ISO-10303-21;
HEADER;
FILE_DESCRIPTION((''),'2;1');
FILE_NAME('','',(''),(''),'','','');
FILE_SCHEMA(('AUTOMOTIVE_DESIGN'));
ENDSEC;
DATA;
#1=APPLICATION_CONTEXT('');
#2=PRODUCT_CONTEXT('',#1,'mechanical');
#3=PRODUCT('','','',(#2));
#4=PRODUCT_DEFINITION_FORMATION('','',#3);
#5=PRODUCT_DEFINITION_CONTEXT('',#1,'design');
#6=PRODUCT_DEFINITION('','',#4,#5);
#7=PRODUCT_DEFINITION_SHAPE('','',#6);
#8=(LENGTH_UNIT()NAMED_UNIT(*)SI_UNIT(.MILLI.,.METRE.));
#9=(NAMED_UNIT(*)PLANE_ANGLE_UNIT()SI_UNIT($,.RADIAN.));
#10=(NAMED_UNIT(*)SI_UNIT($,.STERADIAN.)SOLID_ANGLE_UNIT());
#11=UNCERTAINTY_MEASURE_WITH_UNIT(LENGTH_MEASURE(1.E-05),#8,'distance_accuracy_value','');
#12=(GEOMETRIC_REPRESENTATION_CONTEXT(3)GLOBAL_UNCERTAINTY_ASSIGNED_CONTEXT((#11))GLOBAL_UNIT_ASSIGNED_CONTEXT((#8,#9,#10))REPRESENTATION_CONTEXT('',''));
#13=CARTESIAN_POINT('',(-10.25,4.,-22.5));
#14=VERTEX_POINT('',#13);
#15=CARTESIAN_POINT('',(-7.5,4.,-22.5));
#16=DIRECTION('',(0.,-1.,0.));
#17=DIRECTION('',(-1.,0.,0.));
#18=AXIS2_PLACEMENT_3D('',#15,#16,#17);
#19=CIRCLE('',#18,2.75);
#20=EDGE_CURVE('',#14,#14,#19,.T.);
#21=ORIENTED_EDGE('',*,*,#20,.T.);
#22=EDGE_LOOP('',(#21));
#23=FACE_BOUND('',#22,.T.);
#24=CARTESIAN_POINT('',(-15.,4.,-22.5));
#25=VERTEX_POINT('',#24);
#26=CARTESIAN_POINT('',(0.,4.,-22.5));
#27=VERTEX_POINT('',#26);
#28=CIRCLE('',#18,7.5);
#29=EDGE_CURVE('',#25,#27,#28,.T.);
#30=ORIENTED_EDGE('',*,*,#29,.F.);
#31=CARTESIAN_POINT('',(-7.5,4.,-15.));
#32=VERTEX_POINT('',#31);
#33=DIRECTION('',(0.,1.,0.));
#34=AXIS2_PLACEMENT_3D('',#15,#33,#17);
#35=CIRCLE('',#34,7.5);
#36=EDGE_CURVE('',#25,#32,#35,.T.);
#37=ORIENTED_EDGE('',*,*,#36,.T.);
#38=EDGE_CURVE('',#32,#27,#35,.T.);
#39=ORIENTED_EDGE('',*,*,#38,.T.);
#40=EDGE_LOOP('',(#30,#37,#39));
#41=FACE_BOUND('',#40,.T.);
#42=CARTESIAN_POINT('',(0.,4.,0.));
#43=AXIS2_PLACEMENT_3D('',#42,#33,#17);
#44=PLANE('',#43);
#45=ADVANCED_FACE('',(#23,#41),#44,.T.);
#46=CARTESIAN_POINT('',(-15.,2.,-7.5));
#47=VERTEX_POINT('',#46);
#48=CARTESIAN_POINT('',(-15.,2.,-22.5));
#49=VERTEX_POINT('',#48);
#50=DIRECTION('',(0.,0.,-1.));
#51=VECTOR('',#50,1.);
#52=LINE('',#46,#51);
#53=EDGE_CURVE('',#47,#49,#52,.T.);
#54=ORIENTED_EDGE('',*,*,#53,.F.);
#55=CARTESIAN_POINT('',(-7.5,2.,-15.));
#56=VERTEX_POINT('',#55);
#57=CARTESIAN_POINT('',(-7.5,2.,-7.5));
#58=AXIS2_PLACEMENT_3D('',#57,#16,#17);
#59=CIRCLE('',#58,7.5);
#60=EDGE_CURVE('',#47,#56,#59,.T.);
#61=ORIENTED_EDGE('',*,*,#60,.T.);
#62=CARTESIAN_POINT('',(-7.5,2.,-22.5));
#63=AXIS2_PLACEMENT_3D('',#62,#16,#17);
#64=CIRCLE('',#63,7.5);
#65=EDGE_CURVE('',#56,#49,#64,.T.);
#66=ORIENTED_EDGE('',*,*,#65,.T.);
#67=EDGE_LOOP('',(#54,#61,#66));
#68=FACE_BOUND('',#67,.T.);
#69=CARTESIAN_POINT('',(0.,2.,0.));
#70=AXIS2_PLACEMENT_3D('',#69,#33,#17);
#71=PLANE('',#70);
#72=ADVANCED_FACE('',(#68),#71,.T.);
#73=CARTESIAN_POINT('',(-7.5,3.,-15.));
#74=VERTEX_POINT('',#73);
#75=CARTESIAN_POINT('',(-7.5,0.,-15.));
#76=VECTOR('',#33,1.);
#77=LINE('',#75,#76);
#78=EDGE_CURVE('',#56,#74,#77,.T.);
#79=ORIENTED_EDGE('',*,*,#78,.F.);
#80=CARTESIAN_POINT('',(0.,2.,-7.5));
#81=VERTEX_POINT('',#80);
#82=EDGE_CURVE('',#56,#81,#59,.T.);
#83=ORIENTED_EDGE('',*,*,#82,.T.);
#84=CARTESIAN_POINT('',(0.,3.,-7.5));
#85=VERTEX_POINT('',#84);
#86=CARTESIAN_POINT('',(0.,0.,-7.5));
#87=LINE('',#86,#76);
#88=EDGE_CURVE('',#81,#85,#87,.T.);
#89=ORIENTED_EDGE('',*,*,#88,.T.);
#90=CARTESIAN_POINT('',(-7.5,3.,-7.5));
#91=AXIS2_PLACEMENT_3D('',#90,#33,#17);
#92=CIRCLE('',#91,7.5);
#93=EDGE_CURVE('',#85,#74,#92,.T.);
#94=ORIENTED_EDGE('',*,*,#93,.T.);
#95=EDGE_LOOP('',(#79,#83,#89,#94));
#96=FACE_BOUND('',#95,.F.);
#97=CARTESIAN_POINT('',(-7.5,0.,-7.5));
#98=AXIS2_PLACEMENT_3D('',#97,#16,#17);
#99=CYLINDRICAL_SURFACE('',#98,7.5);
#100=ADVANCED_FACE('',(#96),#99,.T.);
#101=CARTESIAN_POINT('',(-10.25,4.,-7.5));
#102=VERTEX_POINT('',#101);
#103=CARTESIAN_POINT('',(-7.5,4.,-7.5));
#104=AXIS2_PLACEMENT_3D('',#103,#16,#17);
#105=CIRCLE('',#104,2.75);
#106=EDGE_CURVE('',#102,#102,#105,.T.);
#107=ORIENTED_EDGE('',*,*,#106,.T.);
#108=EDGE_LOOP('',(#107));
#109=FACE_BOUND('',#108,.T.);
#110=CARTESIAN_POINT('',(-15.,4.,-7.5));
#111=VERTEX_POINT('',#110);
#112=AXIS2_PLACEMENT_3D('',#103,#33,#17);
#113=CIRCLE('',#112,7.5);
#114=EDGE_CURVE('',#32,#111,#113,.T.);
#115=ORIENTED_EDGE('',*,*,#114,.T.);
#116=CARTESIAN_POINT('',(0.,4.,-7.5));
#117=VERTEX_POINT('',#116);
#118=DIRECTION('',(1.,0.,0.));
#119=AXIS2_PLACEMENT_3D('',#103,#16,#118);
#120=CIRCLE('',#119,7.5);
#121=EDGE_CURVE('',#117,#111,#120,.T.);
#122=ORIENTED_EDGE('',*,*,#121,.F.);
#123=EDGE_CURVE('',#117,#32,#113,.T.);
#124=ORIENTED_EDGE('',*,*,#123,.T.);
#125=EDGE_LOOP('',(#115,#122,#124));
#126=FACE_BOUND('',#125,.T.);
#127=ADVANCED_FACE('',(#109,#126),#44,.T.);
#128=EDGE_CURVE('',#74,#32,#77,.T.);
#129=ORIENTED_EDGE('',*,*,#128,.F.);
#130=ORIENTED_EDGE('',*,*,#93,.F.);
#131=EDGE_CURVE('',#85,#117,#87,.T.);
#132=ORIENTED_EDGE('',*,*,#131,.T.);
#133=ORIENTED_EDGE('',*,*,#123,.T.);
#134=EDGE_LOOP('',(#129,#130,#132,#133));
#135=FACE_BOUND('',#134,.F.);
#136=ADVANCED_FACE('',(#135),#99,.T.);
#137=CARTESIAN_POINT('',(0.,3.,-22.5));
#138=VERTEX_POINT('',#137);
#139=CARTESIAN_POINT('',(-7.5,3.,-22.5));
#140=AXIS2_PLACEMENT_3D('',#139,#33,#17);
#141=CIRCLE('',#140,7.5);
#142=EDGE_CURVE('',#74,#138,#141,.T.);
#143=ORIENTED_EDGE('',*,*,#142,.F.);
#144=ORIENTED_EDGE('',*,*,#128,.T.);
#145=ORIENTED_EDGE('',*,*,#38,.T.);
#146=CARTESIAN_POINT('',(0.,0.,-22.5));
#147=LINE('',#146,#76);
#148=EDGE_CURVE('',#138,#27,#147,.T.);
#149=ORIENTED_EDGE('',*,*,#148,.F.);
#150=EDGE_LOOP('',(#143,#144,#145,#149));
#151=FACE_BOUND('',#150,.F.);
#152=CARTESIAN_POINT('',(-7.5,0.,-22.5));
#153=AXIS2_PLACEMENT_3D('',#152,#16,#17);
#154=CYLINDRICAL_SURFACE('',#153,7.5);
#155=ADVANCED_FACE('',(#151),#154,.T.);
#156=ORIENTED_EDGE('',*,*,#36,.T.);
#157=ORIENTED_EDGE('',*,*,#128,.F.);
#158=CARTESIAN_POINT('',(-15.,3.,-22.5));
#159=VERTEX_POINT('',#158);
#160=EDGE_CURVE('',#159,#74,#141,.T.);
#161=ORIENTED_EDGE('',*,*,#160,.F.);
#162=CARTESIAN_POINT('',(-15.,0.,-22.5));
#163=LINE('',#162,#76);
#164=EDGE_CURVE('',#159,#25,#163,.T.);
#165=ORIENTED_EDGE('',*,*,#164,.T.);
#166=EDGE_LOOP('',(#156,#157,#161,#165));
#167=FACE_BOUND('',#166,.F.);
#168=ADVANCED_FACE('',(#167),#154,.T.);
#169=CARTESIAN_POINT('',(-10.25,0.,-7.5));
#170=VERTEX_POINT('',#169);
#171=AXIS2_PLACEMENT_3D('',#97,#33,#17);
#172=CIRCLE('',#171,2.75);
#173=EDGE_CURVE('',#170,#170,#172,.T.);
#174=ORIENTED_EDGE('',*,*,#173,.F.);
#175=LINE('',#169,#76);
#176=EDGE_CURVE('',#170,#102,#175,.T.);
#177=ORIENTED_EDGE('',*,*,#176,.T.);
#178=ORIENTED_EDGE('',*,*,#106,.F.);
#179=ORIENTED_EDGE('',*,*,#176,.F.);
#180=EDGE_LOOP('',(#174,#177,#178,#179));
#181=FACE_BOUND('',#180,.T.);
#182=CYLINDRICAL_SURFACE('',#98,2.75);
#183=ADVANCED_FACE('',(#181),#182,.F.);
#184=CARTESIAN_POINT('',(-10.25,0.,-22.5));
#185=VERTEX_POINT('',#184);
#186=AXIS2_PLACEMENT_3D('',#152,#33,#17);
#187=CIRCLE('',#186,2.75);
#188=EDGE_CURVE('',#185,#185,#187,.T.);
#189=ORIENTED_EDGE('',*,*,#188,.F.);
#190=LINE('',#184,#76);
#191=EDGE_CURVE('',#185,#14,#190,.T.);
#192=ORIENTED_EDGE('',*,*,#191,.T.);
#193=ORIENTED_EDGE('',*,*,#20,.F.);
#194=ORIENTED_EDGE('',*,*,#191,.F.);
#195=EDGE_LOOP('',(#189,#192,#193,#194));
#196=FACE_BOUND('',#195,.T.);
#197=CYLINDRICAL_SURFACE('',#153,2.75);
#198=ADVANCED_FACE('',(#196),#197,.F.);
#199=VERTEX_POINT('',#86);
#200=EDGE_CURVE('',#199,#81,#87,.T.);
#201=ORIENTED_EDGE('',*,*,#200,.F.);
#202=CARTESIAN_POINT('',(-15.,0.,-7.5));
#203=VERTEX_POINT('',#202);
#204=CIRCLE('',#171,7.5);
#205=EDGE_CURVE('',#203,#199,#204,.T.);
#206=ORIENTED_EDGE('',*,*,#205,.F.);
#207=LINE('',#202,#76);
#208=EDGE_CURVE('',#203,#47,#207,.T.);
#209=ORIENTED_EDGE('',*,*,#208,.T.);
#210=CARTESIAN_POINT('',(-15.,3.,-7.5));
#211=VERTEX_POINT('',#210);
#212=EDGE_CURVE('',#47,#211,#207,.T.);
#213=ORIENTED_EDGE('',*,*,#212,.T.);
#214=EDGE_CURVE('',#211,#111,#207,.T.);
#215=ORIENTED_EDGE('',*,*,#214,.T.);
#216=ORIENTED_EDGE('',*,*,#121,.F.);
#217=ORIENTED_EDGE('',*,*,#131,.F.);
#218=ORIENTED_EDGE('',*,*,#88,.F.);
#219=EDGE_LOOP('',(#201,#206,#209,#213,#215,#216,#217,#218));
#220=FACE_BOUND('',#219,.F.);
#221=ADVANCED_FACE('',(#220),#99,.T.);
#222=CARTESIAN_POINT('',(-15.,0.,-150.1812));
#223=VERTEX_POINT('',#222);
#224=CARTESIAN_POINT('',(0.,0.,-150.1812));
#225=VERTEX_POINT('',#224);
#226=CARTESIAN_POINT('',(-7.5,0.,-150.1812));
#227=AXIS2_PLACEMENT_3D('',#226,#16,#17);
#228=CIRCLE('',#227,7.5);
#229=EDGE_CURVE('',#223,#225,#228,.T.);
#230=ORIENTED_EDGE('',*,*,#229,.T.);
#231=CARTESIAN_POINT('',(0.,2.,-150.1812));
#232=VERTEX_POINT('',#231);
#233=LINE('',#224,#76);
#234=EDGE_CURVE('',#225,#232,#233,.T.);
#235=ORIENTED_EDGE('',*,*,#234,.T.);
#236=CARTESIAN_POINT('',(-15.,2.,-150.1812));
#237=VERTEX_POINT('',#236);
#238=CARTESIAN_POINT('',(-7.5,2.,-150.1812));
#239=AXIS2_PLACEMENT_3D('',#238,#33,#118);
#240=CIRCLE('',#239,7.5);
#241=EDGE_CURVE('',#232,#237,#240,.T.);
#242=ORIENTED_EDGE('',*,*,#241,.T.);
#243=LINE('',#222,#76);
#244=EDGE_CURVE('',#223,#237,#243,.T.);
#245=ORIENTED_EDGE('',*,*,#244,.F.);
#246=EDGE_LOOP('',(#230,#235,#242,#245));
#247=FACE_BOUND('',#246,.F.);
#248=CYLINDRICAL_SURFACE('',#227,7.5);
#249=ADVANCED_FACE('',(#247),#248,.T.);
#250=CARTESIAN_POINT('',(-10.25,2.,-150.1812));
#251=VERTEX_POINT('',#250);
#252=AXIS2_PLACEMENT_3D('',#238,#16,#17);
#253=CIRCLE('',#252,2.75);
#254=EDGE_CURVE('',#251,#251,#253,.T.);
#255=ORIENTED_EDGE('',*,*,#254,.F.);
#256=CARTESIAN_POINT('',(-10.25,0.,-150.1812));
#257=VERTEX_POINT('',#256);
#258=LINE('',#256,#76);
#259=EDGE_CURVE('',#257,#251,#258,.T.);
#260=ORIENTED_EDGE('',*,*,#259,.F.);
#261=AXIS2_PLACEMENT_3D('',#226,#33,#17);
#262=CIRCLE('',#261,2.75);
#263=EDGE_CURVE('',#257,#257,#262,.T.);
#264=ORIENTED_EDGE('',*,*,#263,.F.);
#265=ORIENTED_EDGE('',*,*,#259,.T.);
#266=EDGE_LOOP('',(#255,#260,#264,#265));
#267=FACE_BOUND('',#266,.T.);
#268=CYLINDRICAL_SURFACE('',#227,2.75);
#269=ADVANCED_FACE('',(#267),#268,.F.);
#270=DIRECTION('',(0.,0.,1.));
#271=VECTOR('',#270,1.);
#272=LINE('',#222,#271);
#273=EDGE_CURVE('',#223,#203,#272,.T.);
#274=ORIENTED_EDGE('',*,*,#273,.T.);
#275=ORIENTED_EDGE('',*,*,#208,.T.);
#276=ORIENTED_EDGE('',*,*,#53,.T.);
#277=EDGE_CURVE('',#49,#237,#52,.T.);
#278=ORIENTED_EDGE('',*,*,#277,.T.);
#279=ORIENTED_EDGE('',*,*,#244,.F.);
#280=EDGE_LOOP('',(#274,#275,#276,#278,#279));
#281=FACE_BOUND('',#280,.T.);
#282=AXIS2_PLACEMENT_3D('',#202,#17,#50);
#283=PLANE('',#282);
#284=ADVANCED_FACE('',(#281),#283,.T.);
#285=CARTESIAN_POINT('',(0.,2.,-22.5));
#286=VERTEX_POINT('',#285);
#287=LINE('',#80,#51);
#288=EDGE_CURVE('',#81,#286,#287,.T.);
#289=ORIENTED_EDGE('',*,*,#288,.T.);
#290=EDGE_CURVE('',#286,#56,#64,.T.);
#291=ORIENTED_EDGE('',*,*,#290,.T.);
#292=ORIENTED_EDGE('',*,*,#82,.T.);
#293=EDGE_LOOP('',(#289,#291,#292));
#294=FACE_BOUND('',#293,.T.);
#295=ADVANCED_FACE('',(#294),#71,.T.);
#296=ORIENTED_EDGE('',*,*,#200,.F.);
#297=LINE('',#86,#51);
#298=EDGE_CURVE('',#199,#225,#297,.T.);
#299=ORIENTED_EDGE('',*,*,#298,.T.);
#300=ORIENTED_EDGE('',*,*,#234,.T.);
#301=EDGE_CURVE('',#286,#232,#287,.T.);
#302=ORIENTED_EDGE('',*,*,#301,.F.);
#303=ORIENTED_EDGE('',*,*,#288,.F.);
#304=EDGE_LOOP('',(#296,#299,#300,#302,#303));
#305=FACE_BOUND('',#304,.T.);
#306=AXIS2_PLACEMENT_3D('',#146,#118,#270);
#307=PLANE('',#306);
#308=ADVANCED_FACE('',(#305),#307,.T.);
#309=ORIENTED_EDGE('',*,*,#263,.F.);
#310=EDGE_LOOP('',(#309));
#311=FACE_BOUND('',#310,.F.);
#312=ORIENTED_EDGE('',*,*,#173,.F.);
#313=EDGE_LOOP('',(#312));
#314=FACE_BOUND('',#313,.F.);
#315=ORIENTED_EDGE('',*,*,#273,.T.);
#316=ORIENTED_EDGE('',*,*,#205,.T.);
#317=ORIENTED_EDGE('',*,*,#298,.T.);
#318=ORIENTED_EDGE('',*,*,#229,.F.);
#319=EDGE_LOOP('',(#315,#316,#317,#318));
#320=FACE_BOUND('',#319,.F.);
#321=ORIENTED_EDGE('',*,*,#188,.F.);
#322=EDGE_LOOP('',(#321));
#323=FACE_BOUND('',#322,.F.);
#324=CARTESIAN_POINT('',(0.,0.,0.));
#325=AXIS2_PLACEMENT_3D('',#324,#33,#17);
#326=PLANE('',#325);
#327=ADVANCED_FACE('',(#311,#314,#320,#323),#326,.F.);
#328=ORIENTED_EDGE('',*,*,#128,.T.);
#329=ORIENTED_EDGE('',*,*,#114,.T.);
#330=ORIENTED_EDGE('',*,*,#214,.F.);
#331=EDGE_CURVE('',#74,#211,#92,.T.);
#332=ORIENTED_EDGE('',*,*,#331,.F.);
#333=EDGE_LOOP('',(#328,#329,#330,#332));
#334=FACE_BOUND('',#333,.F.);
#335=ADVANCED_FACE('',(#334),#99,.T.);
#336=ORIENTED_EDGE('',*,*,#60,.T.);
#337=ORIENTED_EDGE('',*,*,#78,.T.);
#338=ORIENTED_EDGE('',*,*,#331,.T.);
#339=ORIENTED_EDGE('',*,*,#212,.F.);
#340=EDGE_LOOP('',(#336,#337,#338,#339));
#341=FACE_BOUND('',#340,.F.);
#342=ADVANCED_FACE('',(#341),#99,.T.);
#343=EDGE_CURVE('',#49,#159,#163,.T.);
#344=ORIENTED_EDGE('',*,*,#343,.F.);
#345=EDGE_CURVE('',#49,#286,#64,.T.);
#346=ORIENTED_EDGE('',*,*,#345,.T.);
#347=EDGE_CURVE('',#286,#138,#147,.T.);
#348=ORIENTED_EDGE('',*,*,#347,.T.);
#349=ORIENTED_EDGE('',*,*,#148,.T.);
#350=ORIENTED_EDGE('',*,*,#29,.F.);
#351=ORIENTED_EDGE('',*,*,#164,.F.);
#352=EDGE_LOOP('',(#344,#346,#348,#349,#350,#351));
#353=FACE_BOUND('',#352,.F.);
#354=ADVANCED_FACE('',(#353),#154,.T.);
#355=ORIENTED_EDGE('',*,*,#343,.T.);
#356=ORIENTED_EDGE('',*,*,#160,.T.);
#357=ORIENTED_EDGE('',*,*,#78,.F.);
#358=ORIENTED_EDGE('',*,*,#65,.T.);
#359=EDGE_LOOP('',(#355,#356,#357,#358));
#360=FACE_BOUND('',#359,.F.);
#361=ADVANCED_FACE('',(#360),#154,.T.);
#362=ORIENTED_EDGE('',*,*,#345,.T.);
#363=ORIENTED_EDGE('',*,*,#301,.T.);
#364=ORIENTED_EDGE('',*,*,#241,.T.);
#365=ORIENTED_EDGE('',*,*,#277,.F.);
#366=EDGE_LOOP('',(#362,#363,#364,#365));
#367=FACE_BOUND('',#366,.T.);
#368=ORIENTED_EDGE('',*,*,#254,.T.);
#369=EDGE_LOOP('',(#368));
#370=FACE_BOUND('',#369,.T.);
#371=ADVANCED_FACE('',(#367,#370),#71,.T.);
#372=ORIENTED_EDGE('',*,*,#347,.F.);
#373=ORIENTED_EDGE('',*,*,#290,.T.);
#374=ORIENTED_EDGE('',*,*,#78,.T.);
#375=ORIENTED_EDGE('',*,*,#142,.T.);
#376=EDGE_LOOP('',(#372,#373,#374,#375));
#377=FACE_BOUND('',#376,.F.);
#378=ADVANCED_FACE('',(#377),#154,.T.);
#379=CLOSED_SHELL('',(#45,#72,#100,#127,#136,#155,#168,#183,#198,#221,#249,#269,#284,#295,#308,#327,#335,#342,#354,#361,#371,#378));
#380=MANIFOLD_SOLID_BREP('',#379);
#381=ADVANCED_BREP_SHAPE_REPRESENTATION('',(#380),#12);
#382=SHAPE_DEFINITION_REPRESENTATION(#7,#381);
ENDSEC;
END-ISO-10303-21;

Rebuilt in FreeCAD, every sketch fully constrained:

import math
import FreeCAD as App
import Part
import Sketcher
Q = App.Units.Quantity

doc = App.newDocument("Part")
body = doc.addObject("PartDesign::Body", "Body")

sketch1 = body.newObject("Sketcher::SketchObject", "Sketch")
sketch1.AttachmentSupport = (doc.getObject("XZ_Plane"), [""])
sketch1.MapMode = "FlatFace"
sketch1.addGeometry(Part.ArcOfCircle(Part.Circle(App.Vector(-7.5, -7.5, 0), App.Vector(0, 0, 1), 7.5), math.radians(0), math.radians(180)), False)
sketch1.addGeometry(Part.LineSegment(App.Vector(0, -7.5, 0), App.Vector(0, -150.2, 0)), False)
sketch1.addGeometry(Part.ArcOfCircle(Part.Circle(App.Vector(-7.5, -150.2, 0), App.Vector(0, 0, 1), 7.5), math.radians(180), math.radians(360)), False)
sketch1.addGeometry(Part.LineSegment(App.Vector(-15, -150.2, 0), App.Vector(-15, -7.5, 0)), False)
sketch1.addGeometry(Part.Circle(App.Vector(-7.5, -7.5, 0), App.Vector(0, 0, 1), 2.8), False)
sketch1.addGeometry(Part.Circle(App.Vector(-7.5, -22.5, 0), App.Vector(0, 0, 1), 2.8), False)
sketch1.addGeometry(Part.Circle(App.Vector(-7.5, -150.2, 0), App.Vector(0, 0, 1), 2.8), False)
sketch1.addConstraint(Sketcher.Constraint("Tangent", 0, 1, 1, 1))
sketch1.addConstraint(Sketcher.Constraint("Tangent", 1, 2, 2, 2))
sketch1.addConstraint(Sketcher.Constraint("Tangent", 2, 1, 3, 1))
sketch1.addConstraint(Sketcher.Constraint("Tangent", 3, 2, 0, 2))
sketch1.addConstraint(Sketcher.Constraint("Vertical", 1))
sketch1.addConstraint(Sketcher.Constraint("Vertical", 3))
sketch1.addConstraint(Sketcher.Constraint("Coincident", 4, 3, 0, 3))
sketch1.addConstraint(Sketcher.Constraint("Coincident", 6, 3, 2, 3))
sketch1.addConstraint(Sketcher.Constraint("Equal", 4, 5))
sketch1.addConstraint(Sketcher.Constraint("Equal", 5, 6))
sketch1.addConstraint(Sketcher.Constraint("PointOnObject", 0, 1, -2))
sketch1.addConstraint(Sketcher.Constraint("Vertical", 4, 3, 5, 3))
sketch1.addConstraint(Sketcher.Constraint("Diameter", 4, Q("5.5 mm")))
sketch1.addConstraint(Sketcher.Constraint("Radius", 0, Q("7.5 mm")))
sketch1.addConstraint(Sketcher.Constraint("DistanceY", 5, 3, 0, 3, Q("15 mm")))
sketch1.addConstraint(Sketcher.Constraint("DistanceY", 0, 3, -1, 1, Q("7.5 mm")))
sketch1.addConstraint(Sketcher.Constraint("DistanceY", 1, 2, 1, 1, Q("142.6812 mm")))
pad1 = body.newObject("PartDesign::Pad", "Pad")
pad1.Profile = sketch1
pad1.Length = 2
pad1.Reversed = True

sketch2 = body.newObject("Sketcher::SketchObject", "Sketch001")
sketch2.AttachmentSupport = (doc.getObject("XZ_Plane"), [""])
sketch2.MapMode = "FlatFace"
sketch2.addGeometry(Part.Circle(App.Vector(-7.5, -7.5, 0), App.Vector(0, 0, 1), 7.5), False)
sketch2.addGeometry(Part.Circle(App.Vector(-7.5, -7.5, 0), App.Vector(0, 0, 1), 2.8), False)
sketch2.addGeometry(Part.Circle(App.Vector(-7.5, -22.5, 0), App.Vector(0, 0, 1), 7.5), False)
sketch2.addGeometry(Part.Circle(App.Vector(-7.5, -22.5, 0), App.Vector(0, 0, 1), 2.8), False)
sketch2.addConstraint(Sketcher.Constraint("Coincident", 1, 3, 0, 3))
sketch2.addConstraint(Sketcher.Constraint("Coincident", 3, 3, 2, 3))
sketch2.addConstraint(Sketcher.Constraint("Equal", 0, 2))
sketch2.addConstraint(Sketcher.Constraint("Equal", 1, 3))
sketch2.addConstraint(Sketcher.Constraint("Vertical", 1, 3, 2, 3))
sketch2.addConstraint(Sketcher.Constraint("Diameter", 0, Q("15 mm")))
sketch2.addConstraint(Sketcher.Constraint("Diameter", 1, Q("5.5 mm")))
sketch2.addConstraint(Sketcher.Constraint("DistanceY", 2, 3, 0, 3, Q("15 mm")))
sketch2.addConstraint(Sketcher.Constraint("DistanceX", 0, 3, -1, 1, Q("7.5 mm")))
sketch2.addConstraint(Sketcher.Constraint("DistanceY", 0, 3, -1, 1, Q("7.5 mm")))
pad2 = body.newObject("PartDesign::Pad", "Pad001")
pad2.Profile = sketch2
pad2.Length = 3
pad2.Reversed = True

sketch3 = body.newObject("Sketcher::SketchObject", "Sketch002")
sketch3.AttachmentSupport = (doc.getObject("XZ_Plane"), [""])
sketch3.MapMode = "FlatFace"
sketch3.addGeometry(Part.Circle(App.Vector(-7.5, -7.5, 0), App.Vector(0, 0, 1), 2.8), False)
sketch3.addGeometry(Part.Circle(App.Vector(-7.5, -22.5, 0), App.Vector(0, 0, 1), 2.8), False)
sketch3.addGeometry(Part.Circle(App.Vector(-7.5, -150.2, 0), App.Vector(0, 0, 1), 2.8), False)
sketch3.addConstraint(Sketcher.Constraint("Equal", 0, 1))
sketch3.addConstraint(Sketcher.Constraint("Equal", 1, 2))
sketch3.addConstraint(Sketcher.Constraint("Vertical", 0, 3, 1, 3))
sketch3.addConstraint(Sketcher.Constraint("Vertical", 1, 3, 2, 3))
sketch3.addConstraint(Sketcher.Constraint("Diameter", 0, Q("5.5 mm")))
sketch3.addConstraint(Sketcher.Constraint("DistanceY", 1, 3, 0, 3, Q("15 mm")))
sketch3.addConstraint(Sketcher.Constraint("DistanceX", 0, 3, -1, 1, Q("7.5 mm")))
sketch3.addConstraint(Sketcher.Constraint("DistanceY", 0, 3, -1, 1, Q("7.5 mm")))
sketch3.addConstraint(Sketcher.Constraint("DistanceY", 2, 3, -1, 1, Q("150.1812 mm")))
pocket1 = body.newObject("PartDesign::Pocket", "Pocket")
pocket1.Profile = sketch3
pocket1.Length = 2
pocket1.Midplane = True

sketch4 = body.newObject("Sketcher::SketchObject", "Sketch003")
sketch4.AttachmentSupport = (doc.getObject("XZ_Plane"), [""])
sketch4.MapMode = "FlatFace"
sketch4.addGeometry(Part.Circle(App.Vector(-7.5, -7.5, 0), App.Vector(0, 0, 1), 7.5), False)
sketch4.addGeometry(Part.Circle(App.Vector(-7.5, -7.5, 0), App.Vector(0, 0, 1), 2.8), False)
sketch4.addGeometry(Part.Circle(App.Vector(-7.5, -22.5, 0), App.Vector(0, 0, 1), 7.5), False)
sketch4.addGeometry(Part.Circle(App.Vector(-7.5, -22.5, 0), App.Vector(0, 0, 1), 2.8), False)
sketch4.addConstraint(Sketcher.Constraint("Coincident", 1, 3, 0, 3))
sketch4.addConstraint(Sketcher.Constraint("Coincident", 3, 3, 2, 3))
sketch4.addConstraint(Sketcher.Constraint("Equal", 0, 2))
sketch4.addConstraint(Sketcher.Constraint("Equal", 1, 3))
sketch4.addConstraint(Sketcher.Constraint("Vertical", 1, 3, 2, 3))
sketch4.addConstraint(Sketcher.Constraint("Diameter", 0, Q("15 mm")))
sketch4.addConstraint(Sketcher.Constraint("Diameter", 1, Q("5.5 mm")))
sketch4.addConstraint(Sketcher.Constraint("DistanceY", 2, 3, 0, 3, Q("15 mm")))
sketch4.addConstraint(Sketcher.Constraint("DistanceX", 0, 3, -1, 1, Q("7.5 mm")))
sketch4.addConstraint(Sketcher.Constraint("DistanceY", 0, 3, -1, 1, Q("7.5 mm")))
pad3 = body.newObject("PartDesign::Pad", "Pad002")
pad3.Profile = sketch4
pad3.Length = 4
pad3.Reversed = True

doc.recompute()
